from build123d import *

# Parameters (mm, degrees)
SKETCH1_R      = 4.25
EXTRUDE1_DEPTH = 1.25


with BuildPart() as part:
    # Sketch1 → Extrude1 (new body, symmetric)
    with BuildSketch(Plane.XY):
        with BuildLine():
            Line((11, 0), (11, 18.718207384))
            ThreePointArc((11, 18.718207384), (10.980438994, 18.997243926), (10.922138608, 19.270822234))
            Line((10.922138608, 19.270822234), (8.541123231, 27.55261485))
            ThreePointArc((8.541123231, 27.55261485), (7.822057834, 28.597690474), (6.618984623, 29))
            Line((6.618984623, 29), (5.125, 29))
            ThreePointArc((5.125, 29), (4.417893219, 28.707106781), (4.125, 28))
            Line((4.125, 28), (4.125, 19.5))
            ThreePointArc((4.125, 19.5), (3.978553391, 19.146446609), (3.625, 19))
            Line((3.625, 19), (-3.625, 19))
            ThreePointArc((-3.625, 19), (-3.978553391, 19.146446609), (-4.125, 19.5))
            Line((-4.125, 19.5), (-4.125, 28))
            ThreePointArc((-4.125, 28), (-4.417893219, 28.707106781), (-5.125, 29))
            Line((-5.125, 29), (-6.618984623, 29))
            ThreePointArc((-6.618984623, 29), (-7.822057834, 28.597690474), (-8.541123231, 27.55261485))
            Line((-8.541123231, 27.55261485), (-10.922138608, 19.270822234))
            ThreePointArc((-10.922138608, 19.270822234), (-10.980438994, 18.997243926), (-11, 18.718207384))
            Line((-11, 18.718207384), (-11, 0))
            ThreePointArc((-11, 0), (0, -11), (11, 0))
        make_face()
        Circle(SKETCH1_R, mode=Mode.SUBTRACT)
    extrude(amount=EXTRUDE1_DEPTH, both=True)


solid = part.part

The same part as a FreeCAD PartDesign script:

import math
import FreeCAD as App
import Part
import Sketcher

V = App.Vector
Q = App.Units.Quantity

doc = App.newDocument("Part")
body = doc.addObject("PartDesign::Body", "Body")

# Sketch on XY plane
sketch1 = body.newObject("Sketcher::SketchObject", "Sketch")
sketch1.AttachmentSupport = (doc.getObject("XY_Plane"), [""])
sketch1.MapMode = "FlatFace"
sketch1.addGeometry(Part.LineSegment(V(11, 0, 0), V(11, 18.718207, 0)), False)
sketch1.addGeometry(Part.ArcOfCircle(Part.Circle(V(9, 18.718207, 0), V(0, 0, 1), 2), math.radians(0), math.radians(16.039943)), False)
sketch1.addGeometry(Part.LineSegment(V(10.922139, 19.270822, 0), V(8.541123, 27.552615, 0)), False)
sketch1.addGeometry(Part.ArcOfCircle(Part.Circle(V(6.618985, 27, 0), V(0, 0, 1), 2), math.radians(16.039943), math.radians(90)), False)
sketch1.addGeometry(Part.LineSegment(V(6.618985, 29, 0), V(5.125, 29, 0)), False)
sketch1.addGeometry(Part.ArcOfCircle(Part.Circle(V(5.125, 28, 0), V(0, 0, 1), 1), math.radians(90), math.radians(180)), False)
sketch1.addGeometry(Part.LineSegment(V(4.125, 28, 0), V(4.125, 19.5, 0)), False)
sketch1.addGeometry(Part.ArcOfCircle(Part.Circle(V(3.625, 19.5, 0), V(0, 0, 1), 0.5), math.radians(-90), math.radians(0)), False)
sketch1.addGeometry(Part.LineSegment(V(3.625, 19, 0), V(-3.625, 19, 0)), False)
sketch1.addGeometry(Part.ArcOfCircle(Part.Circle(V(-3.625, 19.5, 0), V(0, 0, 1), 0.5), math.radians(180), math.radians(270)), False)
sketch1.addGeometry(Part.LineSegment(V(-4.125, 19.5, 0), V(-4.125, 28, 0)), False)
sketch1.addGeometry(Part.ArcOfCircle(Part.Circle(V(-5.125, 28, 0), V(0, 0, 1), 1), math.radians(0), math.radians(90)), False)
sketch1.addGeometry(Part.LineSegment(V(-5.125, 29, 0), V(-6.618985, 29, 0)), False)
sketch1.addGeometry(Part.ArcOfCircle(Part.Circle(V(-6.618985, 27, 0), V(0, 0, 1), 2), math.radians(90), math.radians(163.960057)), False)
sketch1.addGeometry(Part.LineSegment(V(-8.541123, 27.552615, 0), V(-10.922139, 19.270822, 0)), False)
sketch1.addGeometry(Part.ArcOfCircle(Part.Circle(V(-9, 18.718207, 0), V(0, 0, 1), 2), math.radians(163.960057), math.radians(180)), False)
sketch1.addGeometry(Part.LineSegment(V(-11, 18.718207, 0), V(-11, 0, 0)), False)
sketch1.addGeometry(Part.ArcOfCircle(Part.Circle(V(0, 0, 0), V(0, 0, 1), 11), math.radians(180), math.radians(360)), False)
sketch1.addGeometry(Part.Circle(V(0, 0, 0), V(0, 0, 1), 4.25), False)
sketch1.addConstraint(Sketcher.Constraint("Tangent", 0, 2, 1, 1))
sketch1.addConstraint(Sketcher.Constraint("Tangent", 1, 2, 2, 1))
sketch1.addConstraint(Sketcher.Constraint("Tangent", 2, 2, 3, 1))
sketch1.addConstraint(Sketcher.Constraint("Tangent", 3, 2, 4, 1))
sketch1.addConstraint(Sketcher.Constraint("Tangent", 4, 2, 5, 1))
sketch1.addConstraint(Sketcher.Constraint("Tangent", 5, 2, 6, 1))
sketch1.addConstraint(Sketcher.Constraint("Tangent", 6, 2, 7, 2))
sketch1.addConstraint(Sketcher.Constraint("Tangent", 7, 1, 8, 1))
sketch1.addConstraint(Sketcher.Constraint("Tangent", 8, 2, 9, 2))
sketch1.addConstraint(Sketcher.Constraint("Tangent", 9, 1, 10, 1))
sketch1.addConstraint(Sketcher.Constraint("Tangent", 10, 2, 11, 1))
sketch1.addConstraint(Sketcher.Constraint("Tangent", 11, 2, 12, 1))
sketch1.addConstraint(Sketcher.Constraint("Tangent", 12, 2, 13, 1))
sketch1.addConstraint(Sketcher.Constraint("Tangent", 13, 2, 14, 1))
sketch1.addConstraint(Sketcher.Constraint("Tangent", 14, 2, 15, 1))
sketch1.addConstraint(Sketcher.Constraint("Tangent", 15, 2, 16, 1))
sketch1.addConstraint(Sketcher.Constraint("Tangent", 16, 2, 17, 1))
sketch1.addConstraint(Sketcher.Constraint("Tangent", 17, 2, 0, 1))
sketch1.addConstraint(Sketcher.Constraint("Vertical", 0))
sketch1.addConstraint(Sketcher.Constraint("Horizontal", 4))
sketch1.addConstraint(Sketcher.Constraint("Vertical", 6))
sketch1.addConstraint(Sketcher.Constraint("Horizontal", 8))
sketch1.addConstraint(Sketcher.Constraint("Vertical", 10))
sketch1.addConstraint(Sketcher.Constraint("Horizontal", 12))
sketch1.addConstraint(Sketcher.Constraint("Vertical", 16))
sketch1.addConstraint(Sketcher.Constraint("Coincident", 17, 3, -1, 1))
sketch1.addConstraint(Sketcher.Constraint("Coincident", 18, 3, -1, 1))
sketch1.addConstraint(Sketcher.Constraint("Equal", 1, 3))
sketch1.addConstraint(Sketcher.Constraint("Equal", 7, 9))
sketch1.addConstraint(Sketcher.Constraint("Equal", 5, 11))
sketch1.addConstraint(Sketcher.Constraint("Equal", 3, 13))
sketch1.addConstraint(Sketcher.Constraint("Equal", 13, 15))
sketch1.addConstraint(Sketcher.Constraint("Symmetric", 5, 3, 11, 3, -2))
sketch1.addConstraint(Sketcher.Constraint("Symmetric", 2, 2, 13, 2, -2))
sketch1.addConstraint(Sketcher.Constraint("Radius", 1, Q("2 mm")))
sketch1.addConstraint(Sketcher.Constraint("Radius", 5, Q("1 mm")))
sketch1.addConstraint(Sketcher.Constraint("Radius", 17, Q("11 mm")))
sketch1.addConstraint(Sketcher.Constraint("Diameter", 18, Q("8.5 mm")))
sketch1.addConstraint(Sketcher.Constraint("Radius", 7, Q("0.5 mm")))
sketch1.addConstraint(Sketcher.Constraint("DistanceY", 6, 2, 6, 1, Q("8.5 mm")))
sketch1.addConstraint(Sketcher.Constraint("DistanceY", -1, 1, 3, 3, Q("27 mm")))
sketch1.addConstraint(Sketcher.Constraint("DistanceX", 8, 2, 8, 1, Q("7.25 mm")))
sketch1.addConstraint(Sketcher.Constraint("Distance", 2, Q("8.617269 mm")))
sketch1.addConstraint(Sketcher.Constraint("DistanceX", 4, 2, 4, 1, Q("1.493985 mm")))
pad1 = body.newObject("PartDesign::Pad", "Pad")
pad1.Profile = sketch1
pad1.Length = 2.5
pad1.Midplane = True

doc.recompute()
